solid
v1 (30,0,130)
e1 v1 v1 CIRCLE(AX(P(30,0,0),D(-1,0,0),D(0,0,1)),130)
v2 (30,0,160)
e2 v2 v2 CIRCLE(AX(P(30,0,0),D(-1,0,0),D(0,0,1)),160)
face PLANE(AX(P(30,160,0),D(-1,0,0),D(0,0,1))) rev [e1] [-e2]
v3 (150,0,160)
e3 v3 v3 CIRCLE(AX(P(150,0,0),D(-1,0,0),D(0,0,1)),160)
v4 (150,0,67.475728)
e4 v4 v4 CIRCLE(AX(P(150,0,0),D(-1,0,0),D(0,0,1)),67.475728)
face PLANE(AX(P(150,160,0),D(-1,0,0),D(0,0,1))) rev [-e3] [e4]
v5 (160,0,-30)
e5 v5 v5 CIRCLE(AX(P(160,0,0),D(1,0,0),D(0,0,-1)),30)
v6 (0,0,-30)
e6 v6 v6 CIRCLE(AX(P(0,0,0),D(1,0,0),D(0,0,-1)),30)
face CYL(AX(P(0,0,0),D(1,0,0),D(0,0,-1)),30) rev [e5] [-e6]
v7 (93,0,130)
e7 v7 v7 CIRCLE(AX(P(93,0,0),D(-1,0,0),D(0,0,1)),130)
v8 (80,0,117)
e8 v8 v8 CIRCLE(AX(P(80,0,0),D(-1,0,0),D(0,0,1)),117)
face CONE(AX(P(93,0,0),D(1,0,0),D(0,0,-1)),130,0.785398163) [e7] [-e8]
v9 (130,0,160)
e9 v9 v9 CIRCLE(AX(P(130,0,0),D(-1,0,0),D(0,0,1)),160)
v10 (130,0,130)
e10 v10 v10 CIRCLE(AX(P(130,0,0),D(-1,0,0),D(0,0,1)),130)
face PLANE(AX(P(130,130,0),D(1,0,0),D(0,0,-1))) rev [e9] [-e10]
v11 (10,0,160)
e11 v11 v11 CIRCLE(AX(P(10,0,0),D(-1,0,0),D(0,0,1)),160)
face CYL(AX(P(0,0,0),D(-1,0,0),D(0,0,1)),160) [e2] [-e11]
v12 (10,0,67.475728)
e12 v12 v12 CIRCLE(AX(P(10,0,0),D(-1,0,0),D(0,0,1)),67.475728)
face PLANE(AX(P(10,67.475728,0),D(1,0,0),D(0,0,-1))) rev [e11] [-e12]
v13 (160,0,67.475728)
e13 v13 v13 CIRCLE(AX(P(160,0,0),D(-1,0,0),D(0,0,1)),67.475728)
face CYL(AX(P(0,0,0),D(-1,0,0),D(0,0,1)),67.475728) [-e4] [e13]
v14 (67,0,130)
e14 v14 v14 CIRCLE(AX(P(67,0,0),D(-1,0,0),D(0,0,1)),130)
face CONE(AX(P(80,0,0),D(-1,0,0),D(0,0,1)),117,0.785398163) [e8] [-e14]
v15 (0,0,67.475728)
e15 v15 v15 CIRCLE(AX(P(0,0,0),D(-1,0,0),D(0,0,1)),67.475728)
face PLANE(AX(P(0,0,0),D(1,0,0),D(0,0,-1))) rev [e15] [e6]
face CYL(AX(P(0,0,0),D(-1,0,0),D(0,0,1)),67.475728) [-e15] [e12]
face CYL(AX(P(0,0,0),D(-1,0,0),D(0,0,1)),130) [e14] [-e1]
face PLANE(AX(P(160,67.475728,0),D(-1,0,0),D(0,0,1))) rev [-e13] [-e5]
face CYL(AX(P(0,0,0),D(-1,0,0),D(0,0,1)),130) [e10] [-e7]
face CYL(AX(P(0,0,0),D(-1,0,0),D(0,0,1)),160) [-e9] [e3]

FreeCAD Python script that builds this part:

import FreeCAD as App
import Part
import Sketcher

V = App.Vector
Q = App.Units.Quantity


def add_polygon(sketch, points):
    """Adds a closed chain of lines whose ends are joined by coincident constraints."""
    first, n = sketch.GeometryCount, len(points)
    for a, b in zip(points, points[1:] + points[:1]):
        sketch.addGeometry(Part.LineSegment(App.Vector(*a, 0), App.Vector(*b, 0)), False)
    for i in range(n):
        sketch.addConstraint(Sketcher.Constraint("Coincident", first + i, 2, first + (i + 1) % n, 1))

doc = App.newDocument("Part")
params = doc.addObject("Spreadsheet::Sheet", "Params")
for row, (alias, value) in enumerate([
    ("sketch1_width", "160 mm"),
    ("sketch1_width2", "10 mm"),
    ("sketch1_width3", "20 mm"),
    ("sketch1_width4", "37 mm"),
    ("sketch1_height", "30 mm"),
    ("revolution_angle", "360 deg"),
    ("sketch2_diameter", "60 mm"),
], start=1):
    params.set(f"A{row}", alias)
    params.set(f"B{row}", "=" + value)
    params.setAlias(f"B{row}", alias)

body = doc.addObject("PartDesign::Body", "Body")

sketch1 = body.newObject("Sketcher::SketchObject", "Sketch")
sketch1.AttachmentSupport = (doc.getObject("XY_Plane"), [""])
sketch1.MapMode = "FlatFace"
add_polygon(sketch1, [(0, 67.475728), (0, 0), (160, 0), (160, 67.475728), (150, 67.475728), (150, 160), (130, 160), (130, 130), (93, 130), (80, 117), (67, 130), (30, 130), (30, 160), (10, 160), (10, 67.475728)])
sketch1.addConstraint(Sketcher.Constraint("Vertical", 0))
sketch1.addConstraint(Sketcher.Constraint("Horizontal", 1))
sketch1.addConstraint(Sketcher.Constraint("Vertical", 2))
sketch1.addConstraint(Sketcher.Constraint("Horizontal", 3))
sketch1.addConstraint(Sketcher.Constraint("Vertical", 4))
sketch1.addConstraint(Sketcher.Constraint("Horizontal", 5))
sketch1.addConstraint(Sketcher.Constraint("Vertical", 6))
sketch1.addConstraint(Sketcher.Constraint("Horizontal", 7))
sketch1.addConstraint(Sketcher.Constraint("Horizontal", 10))
sketch1.addConstraint(Sketcher.Constraint("Vertical", 11))
sketch1.addConstraint(Sketcher.Constraint("Horizontal", 12))
sketch1.addConstraint(Sketcher.Constraint("Vertical", 13))
sketch1.addConstraint(Sketcher.Constraint("Horizontal", 14))
sketch1.addConstraint(Sketcher.Constraint("Coincident", 0, 2, -1, 1))
sketch1.addConstraint(Sketcher.Constraint("Perpendicular", 8, 9))
sketch1.addConstraint(Sketcher.Constraint("Horizontal", 7, 2, 9, 2))
sketch1.addConstraint(Sketcher.Constraint("Horizontal", 5, 2, 11, 2))
sketch1.addConstraint(Sketcher.Constraint("Horizontal", 3, 2, 13, 2))
sketch1.addConstraint(Sketcher.Constraint("Equal", 7, 10))
sketch1.addConstraint(Sketcher.Constraint("Equal", 5, 12))
sketch1.addConstraint(Sketcher.Constraint("Equal", 3, 14))
sketch1.addConstraint(Sketcher.Constraint("Equal", 8, 9))
sketch1.addConstraint(Sketcher.Constraint("DistanceX", 1, 1, 1, 2, Q("160 mm")))
sketch1.addConstraint(Sketcher.Constraint("DistanceX", 3, 2, 3, 1, Q("10 mm")))
sketch1.addConstraint(Sketcher.Constraint("DistanceX", 5, 2, 5, 1, Q("20 mm")))
sketch1.addConstraint(Sketcher.Constraint("DistanceX", 7, 2, 7, 1, Q("37 mm")))
sketch1.addConstraint(Sketcher.Constraint("DistanceY", 6, 2, 6, 1, Q("30 mm")))
sketch1.addConstraint(Sketcher.Constraint("DistanceY", -1, 1, 4, 2, Q("160 mm")))
sketch1.addConstraint(Sketcher.Constraint("DistanceY", 0, 2, 0, 1, Q("67.475728 mm")))
sketch1.setExpression("Constraints[37]", "Params.sketch1_width")
sketch1.setExpression("Constraints[38]", "Params.sketch1_width2")
sketch1.setExpression("Constraints[39]", "Params.sketch1_width3")
sketch1.setExpression("Constraints[40]", "Params.sketch1_width4")
sketch1.setExpression("Constraints[41]", "Params.sketch1_height")
revolution = body.newObject("PartDesign::Revolution", "Revolution")
revolution.Profile = sketch1
revolution.ReferenceAxis = (sketch1, ["H_Axis"])
revolution.setExpression("Angle", "Params.revolution_angle")

sketch2 = body.newObject("Sketcher::SketchObject", "Sketch001")
sketch2.AttachmentSupport = (doc.getObject("YZ_Plane"), [""])
sketch2.MapMode = "FlatFace"
sketch2.AttachmentOffset = App.Placement(V(0, 0, 160), App.Rotation())
sketch2.addGeometry(Part.Circle(V(0, 0, 0), V(0, 0, 1), 30), False)
sketch2.addConstraint(Sketcher.Constraint("Coincident", 0, 3, -1, 1))
sketch2.addConstraint(Sketcher.Constraint("Diameter", 0, Q("60 mm")))
sketch2.setExpression("Constraints[1]", "Params.sketch2_diameter")
pocket1 = body.newObject("PartDesign::Pocket", "Pocket")
pocket1.Profile = sketch2
pocket1.Type = "ThroughAll"

doc.recompute()
